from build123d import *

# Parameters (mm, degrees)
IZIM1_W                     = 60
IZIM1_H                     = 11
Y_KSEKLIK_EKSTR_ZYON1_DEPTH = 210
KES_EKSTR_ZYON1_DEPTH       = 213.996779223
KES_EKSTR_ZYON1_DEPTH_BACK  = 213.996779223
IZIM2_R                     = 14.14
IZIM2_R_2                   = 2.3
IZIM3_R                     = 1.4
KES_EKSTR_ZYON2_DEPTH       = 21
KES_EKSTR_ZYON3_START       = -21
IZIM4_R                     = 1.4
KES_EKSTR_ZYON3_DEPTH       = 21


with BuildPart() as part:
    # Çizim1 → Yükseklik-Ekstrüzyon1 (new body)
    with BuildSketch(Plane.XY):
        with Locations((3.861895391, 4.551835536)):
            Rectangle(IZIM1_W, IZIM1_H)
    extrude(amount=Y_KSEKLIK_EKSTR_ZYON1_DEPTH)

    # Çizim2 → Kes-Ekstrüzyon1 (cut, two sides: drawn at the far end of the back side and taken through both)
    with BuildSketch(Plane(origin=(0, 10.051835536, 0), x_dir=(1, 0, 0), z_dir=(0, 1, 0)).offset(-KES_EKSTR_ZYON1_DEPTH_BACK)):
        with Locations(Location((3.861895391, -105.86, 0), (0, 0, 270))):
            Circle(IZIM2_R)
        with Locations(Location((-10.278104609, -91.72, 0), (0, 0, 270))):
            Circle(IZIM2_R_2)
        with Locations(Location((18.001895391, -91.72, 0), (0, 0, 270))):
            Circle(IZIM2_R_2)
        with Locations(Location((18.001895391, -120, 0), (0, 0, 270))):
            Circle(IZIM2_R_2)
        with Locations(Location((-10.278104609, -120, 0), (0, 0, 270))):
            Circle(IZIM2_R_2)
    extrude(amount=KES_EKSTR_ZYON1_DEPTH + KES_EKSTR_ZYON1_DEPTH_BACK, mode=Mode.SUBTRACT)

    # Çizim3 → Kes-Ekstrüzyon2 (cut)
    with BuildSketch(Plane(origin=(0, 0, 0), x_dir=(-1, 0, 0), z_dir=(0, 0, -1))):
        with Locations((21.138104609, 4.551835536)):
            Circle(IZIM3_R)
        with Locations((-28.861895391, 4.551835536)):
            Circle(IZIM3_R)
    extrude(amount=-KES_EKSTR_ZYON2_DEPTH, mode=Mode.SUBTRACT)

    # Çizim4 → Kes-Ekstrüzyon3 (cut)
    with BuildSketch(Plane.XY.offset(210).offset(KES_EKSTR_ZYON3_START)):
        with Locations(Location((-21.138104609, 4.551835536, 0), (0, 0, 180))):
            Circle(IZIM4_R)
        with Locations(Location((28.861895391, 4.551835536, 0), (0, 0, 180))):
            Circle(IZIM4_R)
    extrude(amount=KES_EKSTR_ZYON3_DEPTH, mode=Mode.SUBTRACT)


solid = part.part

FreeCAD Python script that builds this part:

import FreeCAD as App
import Part
import Sketcher
Q = App.Units.Quantity

doc = App.newDocument("Part")
params = doc.addObject("Spreadsheet::Sheet", "Params")
for row, (alias, value) in enumerate([
    ("sketch1_width", "60 mm"),
    ("sketch1_height", "11 mm"),
    ("pad1_length", "210 mm"),
    ("sketch2_diameter", "4.6 mm"),
    ("sketch2_diameter2", "28.28 mm"),
    ("sketch3_diameter", "2.8 mm"),
    ("pocket2_length", "21 mm"),
    ("sketch4_diameter", "2.8 mm"),
    ("pocket3_length", "21 mm"),
], start=1):
    params.set(f"A{row}", alias)
    params.set(f"B{row}", "=" + value)
    params.setAlias(f"B{row}", alias)

body = doc.addObject("PartDesign::Body", "Body")

# Sketch on XY plane
sketch1 = doc.addObject("Sketcher::SketchObject", "Sketch")
body.addObject(sketch1)
sketch1.AttachmentSupport = (doc.XY_Plane, [""])
sketch1.MapMode = "FlatFace"
sketch1.addGeometry(Part.LineSegment(App.Vector(-26, 10, 0), App.Vector(-26, -1, 0)), False)
sketch1.addGeometry(Part.LineSegment(App.Vector(-26, -1, 0), App.Vector(34, -1, 0)), False)
sketch1.addGeometry(Part.LineSegment(App.Vector(34, -1, 0), App.Vector(34, 10, 0)), False)
sketch1.addGeometry(Part.LineSegment(App.Vector(34, 10, 0), App.Vector(-26, 10, 0)), False)
sketch1.addConstraint(Sketcher.Constraint("Coincident", 0, 2, 1, 1))
sketch1.addConstraint(Sketcher.Constraint("Coincident", 1, 2, 2, 1))
sketch1.addConstraint(Sketcher.Constraint("Coincident", 2, 2, 3, 1))
sketch1.addConstraint(Sketcher.Constraint("Coincident", 3, 2, 0, 1))
sketch1.addConstraint(Sketcher.Constraint("Vertical", 0))
sketch1.addConstraint(Sketcher.Constraint("Horizontal", 1))
sketch1.addConstraint(Sketcher.Constraint("Vertical", 2))
sketch1.addConstraint(Sketcher.Constraint("Horizontal", 3))
sketch1.addConstraint(Sketcher.Constraint("DistanceX", 1, 1, 1, 2, Q("60 mm")))
sketch1.addConstraint(Sketcher.Constraint("DistanceY", 0, 2, 0, 1, Q("11 mm")))
sketch1.addConstraint(Sketcher.Constraint("DistanceX", 0, 2, -1, 1, Q("26.138105 mm")))
sketch1.addConstraint(Sketcher.Constraint("DistanceY", 0, 2, -1, 1, Q("0.948164 mm")))
sketch1.setExpression("Constraints[8]", "Params.sketch1_width")
sketch1.setExpression("Constraints[9]", "Params.sketch1_height")
pad1 = doc.addObject("PartDesign::Pad", "Pad")
body.addObject(pad1)
pad1.Profile = sketch1
pad1.setExpression("Length", "Params.pad1_length")

# Sketch on XZ plane
sketch2 = doc.addObject("Sketcher::SketchObject", "Sketch001")
body.addObject(sketch2)
sketch2.AttachmentSupport = (doc.XZ_Plane, [""])
sketch2.MapMode = "FlatFace"
sketch2.AttachmentOffset = App.Placement(App.Vector(0, 0, -10.051836), App.Rotation())
sketch2.addGeometry(Part.Circle(App.Vector(3.9, 105.9, 0), App.Vector(0, 0, 1), 14.1), False)
sketch2.addGeometry(Part.Circle(App.Vector(-10.3, 91.7, 0), App.Vector(0, 0, 1), 2.3), False)
sketch2.addGeometry(Part.Circle(App.Vector(18, 91.7, 0), App.Vector(0, 0, 1), 2.3), False)
sketch2.addGeometry(Part.Circle(App.Vector(18, 120, 0), App.Vector(0, 0, 1), 2.3), False)
sketch2.addGeometry(Part.Circle(App.Vector(-10.3, 120, 0), App.Vector(0, 0, 1), 2.3), False)
sketch2.addConstraint(Sketcher.Constraint("Equal", 1, 2))
sketch2.addConstraint(Sketcher.Constraint("Equal", 2, 3))
sketch2.addConstraint(Sketcher.Constraint("Equal", 3, 4))
sketch2.addConstraint(Sketcher.Constraint("Horizontal", 1, 3, 2, 3))
sketch2.addConstraint(Sketcher.Constraint("Horizontal", 3, 3, 4, 3))
sketch2.addConstraint(Sketcher.Constraint("Vertical", 2, 3, 3, 3))
sketch2.addConstraint(Sketcher.Constraint("Vertical", 1, 3, 4, 3))
sketch2.addConstraint(Sketcher.Constraint("Diameter", 1, Q("4.6 mm")))
sketch2.addConstraint(Sketcher.Constraint("Diameter", 0, Q("28.28 mm")))
sketch2.addConstraint(Sketcher.Constraint("DistanceY", -1, 1, 3, 3, Q("120 mm")))
sketch2.addConstraint(Sketcher.Constraint("DistanceY", -1, 1, 0, 3, Q("105.86 mm")))
sketch2.addConstraint(Sketcher.Constraint("DistanceY", -1, 1, 1, 3, Q("91.72 mm")))
sketch2.addConstraint(Sketcher.Constraint("DistanceX", 1, 3, 0, 3, Q("14.14 mm")))
sketch2.addConstraint(Sketcher.Constraint("DistanceX", 0, 3, 2, 3, Q("14.14 mm")))
sketch2.addConstraint(Sketcher.Constraint("DistanceX", -1, 1, 0, 3, Q("3.861895 mm")))
sketch2.setExpression("Constraints[7]", "Params.sketch2_diameter")
sketch2.setExpression("Constraints[8]", "Params.sketch2_diameter2")
pocket1 = doc.addObject("PartDesign::Pocket", "Pocket")
body.addObject(pocket1)
pocket1.Profile = sketch2
pocket1.Type = "ThroughAll"
pocket1.Midplane = True

# Sketch on XY plane
sketch3 = doc.addObject("Sketcher::SketchObject", "Sketch002")
body.addObject(sketch3)
sketch3.AttachmentSupport = (doc.XY_Plane, [""])
sketch3.MapMode = "FlatFace"
sketch3.addGeometry(Part.Circle(App.Vector(-21.1, 4.6, 0), App.Vector(0, 0, 1), 1.4), False)
sketch3.addGeometry(Part.Circle(App.Vector(28.9, 4.6, 0), App.Vector(0, 0, 1), 1.4), False)
sketch3.addConstraint(Sketcher.Constraint("Equal", 0, 1))
sketch3.addConstraint(Sketcher.Constraint("Horizontal", 0, 3, 1, 3))
sketch3.addConstraint(Sketcher.Constraint("Diameter", 0, Q("2.8 mm")))
sketch3.addConstraint(Sketcher.Constraint("DistanceX", 0, 3, 1, 3, Q("50 mm")))
sketch3.addConstraint(Sketcher.Constraint("DistanceX", 0, 3, -1, 1, Q("21.138105 mm")))
sketch3.addConstraint(Sketcher.Constraint("DistanceY", -1, 1, 0, 3, Q("4.551836 mm")))
sketch3.setExpression("Constraints[2]", "Params.sketch3_diameter")
pocket2 = doc.addObject("PartDesign::Pocket", "Pocket001")
body.addObject(pocket2)
pocket2.Profile = sketch3
pocket2.setExpression("Length", "Params.pocket2_length")
pocket2.Reversed = True

# Sketch on XY plane
sketch4 = doc.addObject("Sketcher::SketchObject", "Sketch003")
body.addObject(sketch4)
sketch4.AttachmentSupport = (doc.XY_Plane, [""])
sketch4.MapMode = "FlatFace"
sketch4.AttachmentOffset = App.Placement(App.Vector(0, 0, 189), App.Rotation())
sketch4.addGeometry(Part.Circle(App.Vector(-21.1, 4.6, 0), App.Vector(0, 0, 1), 1.4), False)
sketch4.addGeometry(Part.Circle(App.Vector(28.9, 4.6, 0), App.Vector(0, 0, 1), 1.4), False)
sketch4.addConstraint(Sketcher.Constraint("Equal", 0, 1))
sketch4.addConstraint(Sketcher.Constraint("Horizontal", 0, 3, 1, 3))
sketch4.addConstraint(Sketcher.Constraint("Diameter", 0, Q("2.8 mm")))
sketch4.addConstraint(Sketcher.Constraint("DistanceX", 0, 3, 1, 3, Q("50 mm")))
sketch4.addConstraint(Sketcher.Constraint("DistanceX", 0, 3, -1, 1, Q("21.138105 mm")))
sketch4.addConstraint(Sketcher.Constraint("DistanceY", -1, 1, 0, 3, Q("4.551836 mm")))
sketch4.setExpression("Constraints[2]", "Params.sketch4_diameter")
pocket3 = doc.addObject("PartDesign::Pocket", "Pocket002")
body.addObject(pocket3)
pocket3.Profile = sketch4
pocket3.setExpression("Length", "Params.pocket3_length")
pocket3.Reversed = True

doc.recompute()
